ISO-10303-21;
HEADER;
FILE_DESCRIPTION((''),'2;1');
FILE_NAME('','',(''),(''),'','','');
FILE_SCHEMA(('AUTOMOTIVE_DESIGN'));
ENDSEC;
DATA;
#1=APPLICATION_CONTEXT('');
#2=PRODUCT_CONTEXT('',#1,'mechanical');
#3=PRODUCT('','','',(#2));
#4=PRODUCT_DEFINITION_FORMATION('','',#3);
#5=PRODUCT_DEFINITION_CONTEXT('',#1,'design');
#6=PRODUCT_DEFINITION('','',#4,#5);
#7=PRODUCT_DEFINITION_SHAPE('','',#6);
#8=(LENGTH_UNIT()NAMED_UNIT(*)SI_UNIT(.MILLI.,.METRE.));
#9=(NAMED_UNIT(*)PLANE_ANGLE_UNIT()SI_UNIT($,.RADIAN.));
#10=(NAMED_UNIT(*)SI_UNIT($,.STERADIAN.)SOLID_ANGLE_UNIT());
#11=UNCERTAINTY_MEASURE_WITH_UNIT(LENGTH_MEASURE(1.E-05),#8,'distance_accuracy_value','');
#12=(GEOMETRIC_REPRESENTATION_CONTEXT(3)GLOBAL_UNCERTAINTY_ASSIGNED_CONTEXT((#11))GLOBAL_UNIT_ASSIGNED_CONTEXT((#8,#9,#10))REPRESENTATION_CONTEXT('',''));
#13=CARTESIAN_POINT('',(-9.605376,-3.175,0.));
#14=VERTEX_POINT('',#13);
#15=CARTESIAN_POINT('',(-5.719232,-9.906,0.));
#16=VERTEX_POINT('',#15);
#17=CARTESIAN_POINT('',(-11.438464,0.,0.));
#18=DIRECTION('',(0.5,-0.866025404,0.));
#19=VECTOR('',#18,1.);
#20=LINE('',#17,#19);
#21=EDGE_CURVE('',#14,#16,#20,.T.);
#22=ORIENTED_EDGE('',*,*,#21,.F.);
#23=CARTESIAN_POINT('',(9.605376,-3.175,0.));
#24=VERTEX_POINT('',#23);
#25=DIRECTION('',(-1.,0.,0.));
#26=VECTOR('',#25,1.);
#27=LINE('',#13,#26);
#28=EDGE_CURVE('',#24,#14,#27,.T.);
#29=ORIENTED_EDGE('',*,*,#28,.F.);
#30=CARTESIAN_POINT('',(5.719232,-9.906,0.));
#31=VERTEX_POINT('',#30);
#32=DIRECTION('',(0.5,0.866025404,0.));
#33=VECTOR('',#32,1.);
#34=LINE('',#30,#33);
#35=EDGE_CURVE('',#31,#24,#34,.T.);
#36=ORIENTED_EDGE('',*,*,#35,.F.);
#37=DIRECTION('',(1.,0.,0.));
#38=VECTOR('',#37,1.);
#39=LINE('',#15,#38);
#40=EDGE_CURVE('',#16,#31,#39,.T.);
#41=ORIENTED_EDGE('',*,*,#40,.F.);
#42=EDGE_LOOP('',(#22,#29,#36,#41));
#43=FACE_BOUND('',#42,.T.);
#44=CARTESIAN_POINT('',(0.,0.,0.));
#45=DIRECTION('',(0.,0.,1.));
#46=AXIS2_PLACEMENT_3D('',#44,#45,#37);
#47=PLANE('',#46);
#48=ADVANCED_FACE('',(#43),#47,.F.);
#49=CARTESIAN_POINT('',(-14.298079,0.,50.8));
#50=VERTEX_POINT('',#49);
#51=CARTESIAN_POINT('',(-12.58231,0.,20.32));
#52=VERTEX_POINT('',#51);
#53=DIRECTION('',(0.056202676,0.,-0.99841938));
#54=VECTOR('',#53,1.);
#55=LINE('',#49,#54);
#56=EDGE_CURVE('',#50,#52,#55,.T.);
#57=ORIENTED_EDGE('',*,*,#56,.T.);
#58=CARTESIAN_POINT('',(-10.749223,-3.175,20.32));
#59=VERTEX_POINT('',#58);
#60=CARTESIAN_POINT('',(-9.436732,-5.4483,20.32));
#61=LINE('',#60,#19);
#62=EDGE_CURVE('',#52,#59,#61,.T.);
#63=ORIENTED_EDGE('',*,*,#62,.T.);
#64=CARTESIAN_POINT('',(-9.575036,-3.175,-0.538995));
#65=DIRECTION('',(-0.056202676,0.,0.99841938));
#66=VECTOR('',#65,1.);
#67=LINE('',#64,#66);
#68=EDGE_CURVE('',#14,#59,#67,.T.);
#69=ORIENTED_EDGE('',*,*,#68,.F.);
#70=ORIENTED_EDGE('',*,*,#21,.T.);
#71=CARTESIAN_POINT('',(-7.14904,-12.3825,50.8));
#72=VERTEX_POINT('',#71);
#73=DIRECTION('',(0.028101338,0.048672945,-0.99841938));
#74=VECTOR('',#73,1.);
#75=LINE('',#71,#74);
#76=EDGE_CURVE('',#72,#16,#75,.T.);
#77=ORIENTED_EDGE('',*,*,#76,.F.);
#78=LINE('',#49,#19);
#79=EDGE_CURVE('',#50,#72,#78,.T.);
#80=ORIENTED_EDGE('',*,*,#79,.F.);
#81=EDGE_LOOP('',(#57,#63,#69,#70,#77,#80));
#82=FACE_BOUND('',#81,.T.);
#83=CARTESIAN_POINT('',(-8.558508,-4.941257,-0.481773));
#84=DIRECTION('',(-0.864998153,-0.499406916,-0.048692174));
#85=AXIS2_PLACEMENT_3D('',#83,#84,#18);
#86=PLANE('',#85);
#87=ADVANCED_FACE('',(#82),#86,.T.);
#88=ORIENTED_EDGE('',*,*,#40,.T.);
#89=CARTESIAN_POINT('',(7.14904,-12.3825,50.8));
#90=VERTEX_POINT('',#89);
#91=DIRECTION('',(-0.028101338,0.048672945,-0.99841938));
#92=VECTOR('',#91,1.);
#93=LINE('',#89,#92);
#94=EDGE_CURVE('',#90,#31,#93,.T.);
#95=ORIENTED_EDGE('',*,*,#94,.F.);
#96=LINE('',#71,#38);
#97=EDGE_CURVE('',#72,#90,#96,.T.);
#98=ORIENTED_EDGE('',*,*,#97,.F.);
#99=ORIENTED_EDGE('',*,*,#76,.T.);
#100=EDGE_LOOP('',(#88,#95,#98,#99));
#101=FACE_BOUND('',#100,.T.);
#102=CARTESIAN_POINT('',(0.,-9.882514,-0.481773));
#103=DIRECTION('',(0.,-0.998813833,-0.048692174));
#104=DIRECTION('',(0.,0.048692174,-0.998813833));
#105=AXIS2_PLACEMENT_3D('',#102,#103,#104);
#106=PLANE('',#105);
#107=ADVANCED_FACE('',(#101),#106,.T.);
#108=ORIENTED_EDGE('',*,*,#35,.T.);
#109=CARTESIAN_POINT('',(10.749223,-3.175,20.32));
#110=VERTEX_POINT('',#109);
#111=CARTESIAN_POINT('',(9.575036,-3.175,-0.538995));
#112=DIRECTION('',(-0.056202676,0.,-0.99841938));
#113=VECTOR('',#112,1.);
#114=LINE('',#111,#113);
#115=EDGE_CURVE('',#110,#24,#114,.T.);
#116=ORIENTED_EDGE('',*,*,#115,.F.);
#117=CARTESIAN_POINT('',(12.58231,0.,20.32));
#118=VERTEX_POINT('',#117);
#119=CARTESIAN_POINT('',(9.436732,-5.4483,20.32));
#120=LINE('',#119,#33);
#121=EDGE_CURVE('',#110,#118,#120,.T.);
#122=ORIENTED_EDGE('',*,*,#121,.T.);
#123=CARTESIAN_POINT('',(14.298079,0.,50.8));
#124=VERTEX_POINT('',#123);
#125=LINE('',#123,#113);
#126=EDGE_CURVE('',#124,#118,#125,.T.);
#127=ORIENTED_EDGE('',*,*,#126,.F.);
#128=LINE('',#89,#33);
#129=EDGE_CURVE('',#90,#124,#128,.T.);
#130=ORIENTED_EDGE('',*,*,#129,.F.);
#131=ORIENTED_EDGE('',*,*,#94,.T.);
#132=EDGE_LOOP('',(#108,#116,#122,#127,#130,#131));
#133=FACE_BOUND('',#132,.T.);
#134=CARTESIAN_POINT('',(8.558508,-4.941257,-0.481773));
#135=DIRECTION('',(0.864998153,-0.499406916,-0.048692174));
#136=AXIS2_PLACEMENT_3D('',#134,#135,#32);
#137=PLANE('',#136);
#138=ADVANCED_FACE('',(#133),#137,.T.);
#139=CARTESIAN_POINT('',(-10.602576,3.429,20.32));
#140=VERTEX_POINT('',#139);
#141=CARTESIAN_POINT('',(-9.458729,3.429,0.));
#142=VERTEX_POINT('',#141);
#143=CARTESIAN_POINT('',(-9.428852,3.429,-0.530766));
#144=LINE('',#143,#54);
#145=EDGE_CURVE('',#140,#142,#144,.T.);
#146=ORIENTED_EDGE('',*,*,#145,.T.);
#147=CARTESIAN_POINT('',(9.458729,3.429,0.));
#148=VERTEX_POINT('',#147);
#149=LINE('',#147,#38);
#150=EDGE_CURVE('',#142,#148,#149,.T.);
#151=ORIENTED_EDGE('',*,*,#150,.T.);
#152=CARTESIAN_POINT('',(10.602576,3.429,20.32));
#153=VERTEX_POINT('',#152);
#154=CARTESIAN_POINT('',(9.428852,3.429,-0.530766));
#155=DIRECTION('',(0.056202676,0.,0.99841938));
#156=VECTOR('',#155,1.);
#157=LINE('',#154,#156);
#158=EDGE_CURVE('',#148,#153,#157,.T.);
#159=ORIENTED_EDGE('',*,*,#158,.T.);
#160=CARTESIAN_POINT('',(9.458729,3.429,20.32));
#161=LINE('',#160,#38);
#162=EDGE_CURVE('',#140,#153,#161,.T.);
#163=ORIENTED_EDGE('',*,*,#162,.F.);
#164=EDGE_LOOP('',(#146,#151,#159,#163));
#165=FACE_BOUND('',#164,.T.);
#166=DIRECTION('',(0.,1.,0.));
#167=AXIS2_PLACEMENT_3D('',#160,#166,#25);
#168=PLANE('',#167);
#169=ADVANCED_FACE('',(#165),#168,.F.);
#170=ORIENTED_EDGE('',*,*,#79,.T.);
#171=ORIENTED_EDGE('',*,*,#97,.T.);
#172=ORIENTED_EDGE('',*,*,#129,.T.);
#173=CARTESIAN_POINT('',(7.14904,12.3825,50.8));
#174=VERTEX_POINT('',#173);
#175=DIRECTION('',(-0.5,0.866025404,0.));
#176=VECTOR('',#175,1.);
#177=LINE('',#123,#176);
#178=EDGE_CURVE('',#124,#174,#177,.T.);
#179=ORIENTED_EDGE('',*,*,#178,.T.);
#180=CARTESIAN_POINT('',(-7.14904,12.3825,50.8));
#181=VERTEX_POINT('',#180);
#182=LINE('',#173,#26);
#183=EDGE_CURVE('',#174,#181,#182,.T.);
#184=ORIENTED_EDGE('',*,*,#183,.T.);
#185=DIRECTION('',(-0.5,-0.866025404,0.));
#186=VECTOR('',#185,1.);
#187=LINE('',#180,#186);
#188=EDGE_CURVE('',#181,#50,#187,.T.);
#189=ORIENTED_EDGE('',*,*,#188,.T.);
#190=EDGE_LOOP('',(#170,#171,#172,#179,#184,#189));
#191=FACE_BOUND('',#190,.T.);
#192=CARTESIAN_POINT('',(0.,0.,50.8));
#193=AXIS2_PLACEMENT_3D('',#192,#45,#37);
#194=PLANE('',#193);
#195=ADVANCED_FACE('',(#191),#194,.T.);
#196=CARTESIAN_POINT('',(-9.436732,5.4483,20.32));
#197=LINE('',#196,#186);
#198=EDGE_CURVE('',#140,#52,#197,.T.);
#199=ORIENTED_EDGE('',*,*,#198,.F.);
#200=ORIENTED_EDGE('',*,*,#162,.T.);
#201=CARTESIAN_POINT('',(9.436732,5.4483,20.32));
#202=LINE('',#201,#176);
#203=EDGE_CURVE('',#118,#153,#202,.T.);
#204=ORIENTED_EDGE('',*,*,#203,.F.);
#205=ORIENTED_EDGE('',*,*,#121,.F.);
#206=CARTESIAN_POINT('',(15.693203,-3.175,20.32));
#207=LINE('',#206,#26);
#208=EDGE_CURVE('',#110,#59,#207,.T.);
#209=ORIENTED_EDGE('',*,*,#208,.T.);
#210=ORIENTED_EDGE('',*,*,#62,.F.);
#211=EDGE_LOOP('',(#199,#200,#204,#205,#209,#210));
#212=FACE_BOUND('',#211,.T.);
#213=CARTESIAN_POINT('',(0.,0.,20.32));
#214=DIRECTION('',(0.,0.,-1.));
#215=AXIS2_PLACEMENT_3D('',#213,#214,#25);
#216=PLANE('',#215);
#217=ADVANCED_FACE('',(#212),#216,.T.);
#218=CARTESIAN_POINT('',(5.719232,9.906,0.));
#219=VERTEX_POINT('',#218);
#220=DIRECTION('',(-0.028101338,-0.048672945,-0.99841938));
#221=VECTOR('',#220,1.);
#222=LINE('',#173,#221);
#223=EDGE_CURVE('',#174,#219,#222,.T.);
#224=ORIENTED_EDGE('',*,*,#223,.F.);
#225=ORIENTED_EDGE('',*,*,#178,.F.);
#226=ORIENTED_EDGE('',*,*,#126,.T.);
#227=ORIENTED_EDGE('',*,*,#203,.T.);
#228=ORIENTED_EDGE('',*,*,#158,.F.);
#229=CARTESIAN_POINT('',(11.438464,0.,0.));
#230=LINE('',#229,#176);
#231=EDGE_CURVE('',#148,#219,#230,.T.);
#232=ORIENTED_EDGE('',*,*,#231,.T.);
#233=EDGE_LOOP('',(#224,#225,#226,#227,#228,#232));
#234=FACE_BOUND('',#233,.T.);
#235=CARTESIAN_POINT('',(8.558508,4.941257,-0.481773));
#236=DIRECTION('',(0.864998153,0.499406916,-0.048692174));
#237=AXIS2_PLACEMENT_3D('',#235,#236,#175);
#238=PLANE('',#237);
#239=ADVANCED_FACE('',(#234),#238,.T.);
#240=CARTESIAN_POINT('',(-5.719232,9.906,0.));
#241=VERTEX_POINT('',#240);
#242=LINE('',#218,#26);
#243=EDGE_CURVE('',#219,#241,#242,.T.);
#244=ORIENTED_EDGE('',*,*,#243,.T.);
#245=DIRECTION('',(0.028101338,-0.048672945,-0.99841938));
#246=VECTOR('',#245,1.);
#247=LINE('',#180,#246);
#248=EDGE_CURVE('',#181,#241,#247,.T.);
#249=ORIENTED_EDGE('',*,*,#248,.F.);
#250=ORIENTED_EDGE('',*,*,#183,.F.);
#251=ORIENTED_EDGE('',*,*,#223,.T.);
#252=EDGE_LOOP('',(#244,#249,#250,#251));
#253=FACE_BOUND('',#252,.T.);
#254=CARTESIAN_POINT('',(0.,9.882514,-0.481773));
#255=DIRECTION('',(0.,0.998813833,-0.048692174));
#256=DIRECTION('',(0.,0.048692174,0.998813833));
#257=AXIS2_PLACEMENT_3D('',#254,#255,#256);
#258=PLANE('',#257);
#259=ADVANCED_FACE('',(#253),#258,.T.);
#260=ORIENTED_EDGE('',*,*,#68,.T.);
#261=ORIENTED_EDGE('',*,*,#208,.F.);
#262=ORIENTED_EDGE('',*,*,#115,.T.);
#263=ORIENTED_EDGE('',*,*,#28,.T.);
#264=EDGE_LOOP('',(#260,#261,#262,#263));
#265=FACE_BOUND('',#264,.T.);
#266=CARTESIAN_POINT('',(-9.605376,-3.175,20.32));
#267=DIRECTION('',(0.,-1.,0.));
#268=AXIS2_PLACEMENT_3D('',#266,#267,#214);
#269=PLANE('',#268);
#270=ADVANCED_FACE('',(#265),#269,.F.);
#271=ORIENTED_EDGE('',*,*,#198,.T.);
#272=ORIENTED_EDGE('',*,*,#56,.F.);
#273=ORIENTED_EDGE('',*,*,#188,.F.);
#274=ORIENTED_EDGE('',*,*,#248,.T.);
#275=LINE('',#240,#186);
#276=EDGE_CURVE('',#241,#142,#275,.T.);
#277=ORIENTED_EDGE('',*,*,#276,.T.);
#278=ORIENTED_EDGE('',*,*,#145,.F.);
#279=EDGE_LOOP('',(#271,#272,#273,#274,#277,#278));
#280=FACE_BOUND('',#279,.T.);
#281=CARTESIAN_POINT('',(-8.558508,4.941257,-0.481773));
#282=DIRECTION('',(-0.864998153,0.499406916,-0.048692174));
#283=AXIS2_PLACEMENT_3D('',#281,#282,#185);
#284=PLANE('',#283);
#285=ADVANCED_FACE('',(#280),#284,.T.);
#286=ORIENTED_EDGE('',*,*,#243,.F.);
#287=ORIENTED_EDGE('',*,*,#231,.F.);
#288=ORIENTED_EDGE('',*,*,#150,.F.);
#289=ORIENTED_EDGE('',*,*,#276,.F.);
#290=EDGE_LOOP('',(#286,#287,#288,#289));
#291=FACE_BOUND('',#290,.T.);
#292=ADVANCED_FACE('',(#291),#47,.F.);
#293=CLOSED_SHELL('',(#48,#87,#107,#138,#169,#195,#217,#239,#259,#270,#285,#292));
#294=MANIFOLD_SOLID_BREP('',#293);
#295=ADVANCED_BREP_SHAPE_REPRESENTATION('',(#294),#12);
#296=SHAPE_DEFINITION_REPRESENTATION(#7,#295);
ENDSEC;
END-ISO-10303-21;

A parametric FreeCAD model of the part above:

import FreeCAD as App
import Part
import Sketcher
Q = App.Units.Quantity

doc = App.newDocument("Part")
body = doc.addObject("PartDesign::Body", "Body")

# Sketch on XY plane
sketch1 = doc.addObject("Sketcher::SketchObject", "Sketch")
body.addObject(sketch1)
sketch1.AttachmentSupport = (doc.XY_Plane, [""])
sketch1.MapMode = "FlatFace"
sketch1.AttachmentOffset = App.Placement(App.Vector(0, 0, 2 * 25.4), App.Rotation())
sketch1.addGeometry([
    Part.LineSegment(App.Vector(-14, 0, 0), App.Vector(-7, -12, 0)),  # 0
    Part.LineSegment(App.Vector(-7, -12, 0), App.Vector(7, -12, 0)),  # 1
    Part.LineSegment(App.Vector(7, -12, 0), App.Vector(14, 0, 0)),  # 2
    Part.LineSegment(App.Vector(14, 0, 0), App.Vector(7, 12, 0)),  # 3
    Part.LineSegment(App.Vector(7, 12, 0), App.Vector(-7, 12, 0)),  # 4
    Part.LineSegment(App.Vector(-7, 12, 0), App.Vector(-14, 0, 0)),  # 5
], False)
sketch1.addConstraint([
    Sketcher.Constraint("Coincident", 0, 2, 1, 1),
    Sketcher.Constraint("Coincident", 1, 2, 2, 1),
    Sketcher.Constraint("Coincident", 2, 2, 3, 1),
    Sketcher.Constraint("Coincident", 3, 2, 4, 1),
    Sketcher.Constraint("Coincident", 4, 2, 5, 1),
    Sketcher.Constraint("Coincident", 5, 2, 0, 1),
    Sketcher.Constraint("Horizontal", 1),
    Sketcher.Constraint("Horizontal", 4),
    Sketcher.Constraint("Symmetric", 0, 2, 3, 2, -1, 1),
    Sketcher.Constraint("Symmetric", 2, 2, 5, 2, -1, 1),
    Sketcher.Constraint("PointOnObject", 2, 2, -1),
    Sketcher.Constraint("Parallel", 2, 5),
    Sketcher.Constraint("Vertical", 1, 2, 3, 2),
    Sketcher.Constraint("Angle", 0, Q("-60 deg")),
    Sketcher.Constraint("DistanceY", 1, 2, 3, 2, Q("0.975 in")),
    Sketcher.Constraint("DistanceX", 1, 1, 1, 2, 14.298079),
])

# Sketch on XY plane
sketch2 = doc.addObject("Sketcher::SketchObject", "Sketch001")
body.addObject(sketch2)
sketch2.AttachmentSupport = (doc.XY_Plane, [""])
sketch2.MapMode = "FlatFace"
sketch2.addGeometry([
    Part.LineSegment(App.Vector(11, 0, 0), App.Vector(6, 10, 0)),  # 0
    Part.LineSegment(App.Vector(6, 10, 0), App.Vector(-6, 10, 0)),  # 1
    Part.LineSegment(App.Vector(-6, 10, 0), App.Vector(-11, 0, 0)),  # 2
    Part.LineSegment(App.Vector(-11, 0, 0), App.Vector(-6, -10, 0)),  # 3
    Part.LineSegment(App.Vector(-6, -10, 0), App.Vector(6, -10, 0)),  # 4
    Part.LineSegment(App.Vector(6, -10, 0), App.Vector(11, 0, 0)),  # 5
], False)
sketch2.addConstraint([
    Sketcher.Constraint("Coincident", 0, 2, 1, 1),
    Sketcher.Constraint("Coincident", 1, 2, 2, 1),
    Sketcher.Constraint("Coincident", 2, 2, 3, 1),
    Sketcher.Constraint("Coincident", 3, 2, 4, 1),
    Sketcher.Constraint("Coincident", 4, 2, 5, 1),
    Sketcher.Constraint("Coincident", 5, 2, 0, 1),
    Sketcher.Constraint("Horizontal", 1),
    Sketcher.Constraint("Horizontal", 4),
    Sketcher.Constraint("Symmetric", 0, 2, 3, 2, -1, 1),
    Sketcher.Constraint("Symmetric", 2, 2, 5, 2, -1, 1),
    Sketcher.Constraint("PointOnObject", 2, 2, -1),
    Sketcher.Constraint("Parallel", 2, 5),
    Sketcher.Constraint("Vertical", 1, 2, 3, 2),
    Sketcher.Constraint("Angle", 0, Q("120 deg")),
    Sketcher.Constraint("DistanceY", -1, 1, 0, 2, Q("0.39 in")),
    Sketcher.Constraint("DistanceX", 2, 2, 0, 2, Q("0.6754998 in")),
])

additiveloft = doc.addObject("PartDesign::AdditiveLoft", "AdditiveLoft")
body.addObject(additiveloft)
additiveloft.Profile = sketch1
additiveloft.Sections = [sketch2]

# Sketch on XY plane
sketch3 = doc.addObject("Sketcher::SketchObject", "Sketch002")
body.addObject(sketch3)
sketch3.AttachmentSupport = (doc.XY_Plane, [""])
sketch3.MapMode = "FlatFace"
sketch3.addGeometry([
    Part.LineSegment(App.Vector(-16, 3, 0), App.Vector(16, 3, 0)),
    Part.LineSegment(App.Vector(16, 3, 0), App.Vector(16, -3, 0)),
    Part.LineSegment(App.Vector(16, -3, 0), App.Vector(-16, -3, 0)),
    Part.LineSegment(App.Vector(-16, -3, 0), App.Vector(-16, 3, 0)),
], False)
sketch3.addConstraint([
    Sketcher.Constraint("Coincident", 0, 2, 1, 1),
    Sketcher.Constraint("Coincident", 1, 2, 2, 1),
    Sketcher.Constraint("Coincident", 2, 2, 3, 1),
    Sketcher.Constraint("Coincident", 3, 2, 0, 1),
    Sketcher.Constraint("Horizontal", 0),
    Sketcher.Constraint("Vertical", 1),
    Sketcher.Constraint("Horizontal", 2),
    Sketcher.Constraint("Vertical", 3),
    Sketcher.Constraint("DistanceY", 1, 2, 1, 1, Q("0.26 in")),
    Sketcher.Constraint("DistanceY", -1, 1, 0, 2, Q("0.135 in")),
    Sketcher.Constraint("DistanceX", 0, 1, 0, 2, 31.386407),
    Sketcher.Constraint("DistanceX", -1, 1, 0, 2, 15.693203),
])
pocket1 = doc.addObject("PartDesign::Pocket", "Pocket")
body.addObject(pocket1)
pocket1.Profile = sketch3
pocket1.Length = Q("0.8 in")
pocket1.Reversed = True

doc.recompute()
